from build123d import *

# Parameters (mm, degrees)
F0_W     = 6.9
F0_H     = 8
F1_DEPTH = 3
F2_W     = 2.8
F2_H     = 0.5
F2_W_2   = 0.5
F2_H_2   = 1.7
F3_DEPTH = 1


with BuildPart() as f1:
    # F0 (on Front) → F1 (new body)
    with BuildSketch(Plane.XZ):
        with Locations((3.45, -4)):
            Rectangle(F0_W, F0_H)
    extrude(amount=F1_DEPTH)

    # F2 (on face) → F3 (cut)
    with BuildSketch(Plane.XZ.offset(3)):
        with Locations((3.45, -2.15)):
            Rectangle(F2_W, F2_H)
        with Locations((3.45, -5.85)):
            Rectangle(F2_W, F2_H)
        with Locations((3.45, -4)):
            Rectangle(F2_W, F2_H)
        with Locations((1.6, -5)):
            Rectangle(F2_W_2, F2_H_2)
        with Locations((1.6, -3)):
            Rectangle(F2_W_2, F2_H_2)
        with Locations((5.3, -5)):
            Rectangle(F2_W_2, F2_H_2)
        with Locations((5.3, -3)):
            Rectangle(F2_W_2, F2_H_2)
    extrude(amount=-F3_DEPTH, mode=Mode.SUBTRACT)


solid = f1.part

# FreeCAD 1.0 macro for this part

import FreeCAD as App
import Part
import Sketcher
from FreeCAD import Vector


def add_polygon(sketch, points):
    """Adds a closed chain of lines whose ends are joined by coincident constraints."""
    first, n = sketch.GeometryCount, len(points)
    for a, b in zip(points, points[1:] + points[:1]):
        sketch.addGeometry(Part.LineSegment(App.Vector(*a, 0), App.Vector(*b, 0)), False)
    for i in range(n):
        sketch.addConstraint(Sketcher.Constraint("Coincident", first + i, 2, first + (i + 1) % n, 1))

doc = App.newDocument("Part")
body = doc.addObject("PartDesign::Body", "Body")

# Sketch on XZ plane
sketch1 = body.newObject("Sketcher::SketchObject", "Sketch")
sketch1.AttachmentSupport = (doc.getObject("XZ_Plane"), [""])
sketch1.MapMode = "FlatFace"
add_polygon(sketch1, [(0, 0), (0, -8), (7, -8), (7, 0)])  # lines 0-3
sketch1.addConstraint(Sketcher.Constraint("Vertical", 0))
sketch1.addConstraint(Sketcher.Constraint("Horizontal", 1))
sketch1.addConstraint(Sketcher.Constraint("Vertical", 2))
sketch1.addConstraint(Sketcher.Constraint("Horizontal", 3))
sketch1.addConstraint(Sketcher.Constraint("Coincident", 3, 2, -1, 1))
sketch1.addConstraint(Sketcher.Constraint("DistanceY", 0, 2, 0, 1, 8.0))
sketch1.addConstraint(Sketcher.Constraint("DistanceX", 1, 1, 1, 2, 6.9))
pad1 = body.newObject("PartDesign::Pad", "Pad")
pad1.Profile = sketch1
pad1.Length = 3

# Sketch on XZ plane
sketch2 = body.newObject("Sketcher::SketchObject", "Sketch001")
sketch2.AttachmentSupport = (doc.getObject("XZ_Plane"), [""])
sketch2.MapMode = "FlatFace"
sketch2.AttachmentOffset = App.Placement(Vector(0, 0, 3), App.Rotation())
add_polygon(sketch2, [(2, -1.9), (2, -2.4), (4.8, -2.4), (4.8, -1.9)])  # lines 0-3
add_polygon(sketch2, [(2, -5.6), (2, -6.1), (4.8, -6.1), (4.8, -5.6)])  # lines 4-7
add_polygon(sketch2, [(2, -3.8), (2, -4.2), (4.8, -4.2), (4.8, -3.8)])  # lines 8-11
add_polygon(sketch2, [(1.4, -4.2), (1.4, -5.8), (1.9, -5.8), (1.9, -4.2)])  # lines 12-15
add_polygon(sketch2, [(1.4, -2.1), (1.4, -3.9), (1.9, -3.9), (1.9, -2.1)])  # lines 16-19
add_polygon(sketch2, [(5, -4.2), (5, -5.8), (5.5, -5.8), (5.5, -4.2)])  # lines 20-23
add_polygon(sketch2, [(5, -2.1), (5, -3.9), (5.5, -3.9), (5.5, -2.1)])  # lines 24-27
sketch2.addConstraint(Sketcher.Constraint("Vertical", 0))
sketch2.addConstraint(Sketcher.Constraint("Horizontal", 1))
sketch2.addConstraint(Sketcher.Constraint("Vertical", 2))
sketch2.addConstraint(Sketcher.Constraint("Horizontal", 3))
sketch2.addConstraint(Sketcher.Constraint("Vertical", 4))
sketch2.addConstraint(Sketcher.Constraint("Horizontal", 5))
sketch2.addConstraint(Sketcher.Constraint("Vertical", 6))
sketch2.addConstraint(Sketcher.Constraint("Horizontal", 7))
sketch2.addConstraint(Sketcher.Constraint("Vertical", 8))
sketch2.addConstraint(Sketcher.Constraint("Horizontal", 9))
sketch2.addConstraint(Sketcher.Constraint("Vertical", 10))
sketch2.addConstraint(Sketcher.Constraint("Horizontal", 11))
sketch2.addConstraint(Sketcher.Constraint("Vertical", 12))
sketch2.addConstraint(Sketcher.Constraint("Horizontal", 13))
sketch2.addConstraint(Sketcher.Constraint("Vertical", 14))
sketch2.addConstraint(Sketcher.Constraint("Horizontal", 15))
sketch2.addConstraint(Sketcher.Constraint("Vertical", 16))
sketch2.addConstraint(Sketcher.Constraint("Horizontal", 17))
sketch2.addConstraint(Sketcher.Constraint("Vertical", 18))
sketch2.addConstraint(Sketcher.Constraint("Horizontal", 19))
sketch2.addConstraint(Sketcher.Constraint("Vertical", 20))
sketch2.addConstraint(Sketcher.Constraint("Horizontal", 21))
sketch2.addConstraint(Sketcher.Constraint("Vertical", 22))
sketch2.addConstraint(Sketcher.Constraint("Horizontal", 23))
sketch2.addConstraint(Sketcher.Constraint("Vertical", 24))
sketch2.addConstraint(Sketcher.Constraint("Horizontal", 25))
sketch2.addConstraint(Sketcher.Constraint("Vertical", 26))
sketch2.addConstraint(Sketcher.Constraint("Horizontal", 27))
sketch2.addConstraint(Sketcher.Constraint("Horizontal", 13, 2, 20, 2))
sketch2.addConstraint(Sketcher.Constraint("Horizontal", 15, 2, 22, 2))
sketch2.addConstraint(Sketcher.Constraint("Horizontal", 17, 2, 24, 2))
sketch2.addConstraint(Sketcher.Constraint("Horizontal", 19, 2, 26, 2))
sketch2.addConstraint(Sketcher.Constraint("Vertical", 3, 2, 4, 2))
sketch2.addConstraint(Sketcher.Constraint("Vertical", 2, 2, 5, 2))
sketch2.addConstraint(Sketcher.Constraint("Vertical", 7, 2, 8, 2))
sketch2.addConstraint(Sketcher.Constraint("Vertical", 6, 2, 9, 2))
sketch2.addConstraint(Sketcher.Constraint("Vertical", 15, 2, 16, 2))
sketch2.addConstraint(Sketcher.Constraint("Vertical", 14, 2, 17, 2))
sketch2.addConstraint(Sketcher.Constraint("Vertical", 23, 2, 24, 2))
sketch2.addConstraint(Sketcher.Constraint("Vertical", 22, 2, 25, 2))
sketch2.addConstraint(Sketcher.Constraint("Equal", 19, 21))
sketch2.addConstraint(Sketcher.Constraint("Equal", 27, 0))
sketch2.addConstraint(Sketcher.Constraint("Equal", 2, 4))
sketch2.addConstraint(Sketcher.Constraint("Equal", 6, 8))
sketch2.addConstraint(Sketcher.Constraint("Equal", 14, 16))
sketch2.addConstraint(Sketcher.Constraint("DistanceX", 1, 1, 1, 2, 2.8))
sketch2.addConstraint(Sketcher.Constraint("DistanceX", 13, 1, 13, 2, 0.5))
sketch2.addConstraint(Sketcher.Constraint("DistanceY", 12, 2, 12, 1, 1.7))
sketch2.addConstraint(Sketcher.Constraint("DistanceX", 4, 2, 20, 2, 3.0))
sketch2.addConstraint(Sketcher.Constraint("DistanceY", 0, 2, -1, 1, 2.4))
sketch2.addConstraint(Sketcher.Constraint("DistanceY", 4, 2, -1, 1, 6.1))
sketch2.addConstraint(Sketcher.Constraint("DistanceX", 12, 2, 4, 2, 0.7))
sketch2.addConstraint(Sketcher.Constraint("DistanceY", 12, 2, 8, 2, 1.6))
sketch2.addConstraint(Sketcher.Constraint("DistanceY", 15, 2, 16, 2, 0.3))
sketch2.addConstraint(Sketcher.Constraint("DistanceX", -1, 1, 0, 2, 2.05))
sketch2.addConstraint(Sketcher.Constraint("DistanceY", 8, 2, -1, 1, 4.25))
pocket1 = body.newObject("PartDesign::Pocket", "Pocket")
pocket1.Profile = sketch2
pocket1.Length = 1

doc.recompute()
